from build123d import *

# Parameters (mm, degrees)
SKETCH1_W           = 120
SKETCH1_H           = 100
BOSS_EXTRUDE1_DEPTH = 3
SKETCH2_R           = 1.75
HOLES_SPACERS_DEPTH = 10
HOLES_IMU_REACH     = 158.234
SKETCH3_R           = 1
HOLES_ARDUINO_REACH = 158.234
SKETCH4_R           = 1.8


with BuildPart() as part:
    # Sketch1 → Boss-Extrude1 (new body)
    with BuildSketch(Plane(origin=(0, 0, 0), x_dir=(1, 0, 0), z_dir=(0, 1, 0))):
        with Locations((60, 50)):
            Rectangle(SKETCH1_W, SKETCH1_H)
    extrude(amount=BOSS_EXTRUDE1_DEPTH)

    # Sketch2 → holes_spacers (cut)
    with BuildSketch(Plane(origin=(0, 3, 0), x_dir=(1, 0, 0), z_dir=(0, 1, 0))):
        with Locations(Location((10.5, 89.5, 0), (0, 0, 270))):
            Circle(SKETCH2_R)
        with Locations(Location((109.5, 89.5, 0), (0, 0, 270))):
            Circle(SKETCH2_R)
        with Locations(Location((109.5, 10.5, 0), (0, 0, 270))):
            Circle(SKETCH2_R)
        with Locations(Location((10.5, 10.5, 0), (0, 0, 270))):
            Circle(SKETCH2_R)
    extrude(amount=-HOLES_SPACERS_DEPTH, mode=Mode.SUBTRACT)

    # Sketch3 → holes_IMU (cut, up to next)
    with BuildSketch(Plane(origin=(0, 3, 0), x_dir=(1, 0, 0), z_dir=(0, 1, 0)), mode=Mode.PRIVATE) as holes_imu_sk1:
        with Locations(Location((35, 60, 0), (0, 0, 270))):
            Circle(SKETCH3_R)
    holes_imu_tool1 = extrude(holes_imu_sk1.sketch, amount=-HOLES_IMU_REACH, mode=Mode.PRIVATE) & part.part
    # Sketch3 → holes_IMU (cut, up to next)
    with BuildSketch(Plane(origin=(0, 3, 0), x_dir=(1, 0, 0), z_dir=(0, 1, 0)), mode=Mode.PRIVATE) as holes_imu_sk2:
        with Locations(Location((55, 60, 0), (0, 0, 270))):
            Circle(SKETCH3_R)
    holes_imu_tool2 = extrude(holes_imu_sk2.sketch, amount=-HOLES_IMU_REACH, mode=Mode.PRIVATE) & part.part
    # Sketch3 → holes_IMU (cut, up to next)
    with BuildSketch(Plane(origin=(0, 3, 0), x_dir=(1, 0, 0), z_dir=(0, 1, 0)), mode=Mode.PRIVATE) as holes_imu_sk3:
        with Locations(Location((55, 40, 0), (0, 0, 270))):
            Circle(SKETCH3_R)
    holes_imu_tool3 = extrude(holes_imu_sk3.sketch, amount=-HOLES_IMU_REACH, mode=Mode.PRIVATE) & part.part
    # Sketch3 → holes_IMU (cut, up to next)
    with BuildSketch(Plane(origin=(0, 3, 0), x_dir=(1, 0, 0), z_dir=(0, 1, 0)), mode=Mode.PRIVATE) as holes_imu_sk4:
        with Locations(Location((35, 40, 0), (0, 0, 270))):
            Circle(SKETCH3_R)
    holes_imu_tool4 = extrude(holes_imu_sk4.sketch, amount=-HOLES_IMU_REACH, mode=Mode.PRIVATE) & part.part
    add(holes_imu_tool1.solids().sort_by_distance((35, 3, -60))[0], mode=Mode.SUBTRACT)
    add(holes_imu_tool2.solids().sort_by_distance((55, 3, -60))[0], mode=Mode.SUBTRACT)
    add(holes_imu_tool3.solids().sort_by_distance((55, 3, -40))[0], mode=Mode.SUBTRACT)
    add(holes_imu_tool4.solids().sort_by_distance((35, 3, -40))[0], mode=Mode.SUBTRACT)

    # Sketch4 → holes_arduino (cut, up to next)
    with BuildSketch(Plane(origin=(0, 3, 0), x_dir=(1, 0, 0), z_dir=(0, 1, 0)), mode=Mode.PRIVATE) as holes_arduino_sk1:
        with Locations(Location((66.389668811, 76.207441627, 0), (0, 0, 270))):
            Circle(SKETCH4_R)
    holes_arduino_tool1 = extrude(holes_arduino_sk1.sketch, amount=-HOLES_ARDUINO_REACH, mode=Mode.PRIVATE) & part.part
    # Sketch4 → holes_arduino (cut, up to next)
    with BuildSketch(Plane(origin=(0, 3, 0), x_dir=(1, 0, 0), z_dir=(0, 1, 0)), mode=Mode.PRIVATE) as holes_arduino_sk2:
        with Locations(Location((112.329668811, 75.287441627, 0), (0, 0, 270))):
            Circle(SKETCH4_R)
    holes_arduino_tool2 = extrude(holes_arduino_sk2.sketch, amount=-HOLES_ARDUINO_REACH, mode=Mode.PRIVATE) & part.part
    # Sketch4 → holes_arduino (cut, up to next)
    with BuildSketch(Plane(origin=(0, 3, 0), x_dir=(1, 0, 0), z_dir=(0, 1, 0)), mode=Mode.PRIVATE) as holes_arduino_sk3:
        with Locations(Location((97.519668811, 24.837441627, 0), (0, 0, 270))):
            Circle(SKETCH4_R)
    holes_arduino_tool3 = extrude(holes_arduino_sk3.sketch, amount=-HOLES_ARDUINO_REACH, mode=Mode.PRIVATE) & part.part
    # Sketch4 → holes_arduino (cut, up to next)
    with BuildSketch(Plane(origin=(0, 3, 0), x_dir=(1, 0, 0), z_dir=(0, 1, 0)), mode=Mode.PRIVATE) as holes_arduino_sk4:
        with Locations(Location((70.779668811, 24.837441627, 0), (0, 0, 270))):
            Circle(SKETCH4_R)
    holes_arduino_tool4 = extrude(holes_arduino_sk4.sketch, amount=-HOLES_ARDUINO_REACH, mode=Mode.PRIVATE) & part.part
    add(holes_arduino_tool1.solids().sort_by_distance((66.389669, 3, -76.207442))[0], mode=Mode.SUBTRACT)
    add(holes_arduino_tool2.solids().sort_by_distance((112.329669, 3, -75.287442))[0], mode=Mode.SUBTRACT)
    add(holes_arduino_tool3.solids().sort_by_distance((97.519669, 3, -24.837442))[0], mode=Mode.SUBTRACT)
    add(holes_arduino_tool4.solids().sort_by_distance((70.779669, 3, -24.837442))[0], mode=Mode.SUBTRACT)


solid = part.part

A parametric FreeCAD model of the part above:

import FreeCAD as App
import Part
import Sketcher
from FreeCAD import Vector

doc = App.newDocument("Part")
body = doc.addObject("PartDesign::Body", "Body")

sketch1 = body.newObject("Sketcher::SketchObject", "Sketch")
sketch1.AttachmentSupport = (doc.getObject("XZ_Plane"), [""])
sketch1.MapMode = "FlatFace"
sketch1.addGeometry([
    Part.LineSegment(Vector(0, -100, 0), Vector(0, 0, 0)),
    Part.LineSegment(Vector(0, 0, 0), Vector(120, 0, 0)),
    Part.LineSegment(Vector(120, 0, 0), Vector(120, -100, 0)),
    Part.LineSegment(Vector(120, -100, 0), Vector(0, -100, 0)),
], False)
sketch1.addConstraint([
    Sketcher.Constraint("Coincident", 0, 2, 1, 1),
    Sketcher.Constraint("Coincident", 1, 2, 2, 1),
    Sketcher.Constraint("Coincident", 2, 2, 3, 1),
    Sketcher.Constraint("Coincident", 3, 2, 0, 1),
    Sketcher.Constraint("Vertical", 0),
    Sketcher.Constraint("Horizontal", 1),
    Sketcher.Constraint("Vertical", 2),
    Sketcher.Constraint("Horizontal", 3),
    Sketcher.Constraint("Coincident", 0, 2, -1, 1),
    Sketcher.Constraint("DistanceX", 1, 1, 1, 2, 120.0),
    Sketcher.Constraint("DistanceY", 0, 1, 0, 2, 100.0),
])
pad1 = body.newObject("PartDesign::Pad", "Pad")
pad1.Profile = sketch1
pad1.Length = 3
pad1.Reversed = True

sketch2 = body.newObject("Sketcher::SketchObject", "Sketch001")
sketch2.AttachmentSupport = (doc.getObject("XZ_Plane"), [""])
sketch2.MapMode = "FlatFace"
sketch2.AttachmentOffset = App.Placement(Vector(0, 0, -3), App.Rotation())
sketch2.addGeometry([
    Part.Circle(Vector(10.5, -89.5, 0), Vector(0, 0, 1), 1.75),
    Part.Circle(Vector(109.5, -89.5, 0), Vector(0, 0, 1), 1.75),
    Part.Circle(Vector(109.5, -10.5, 0), Vector(0, 0, 1), 1.75),
    Part.Circle(Vector(10.5, -10.5, 0), Vector(0, 0, 1), 1.75),
], False)
sketch2.addConstraint([
    Sketcher.Constraint("Equal", 0, 1),
    Sketcher.Constraint("Equal", 1, 2),
    Sketcher.Constraint("Equal", 2, 3),
    Sketcher.Constraint("Horizontal", 0, 3, 1, 3),
    Sketcher.Constraint("Horizontal", 2, 3, 3, 3),
    Sketcher.Constraint("Vertical", 1, 3, 2, 3),
    Sketcher.Constraint("Vertical", 0, 3, 3, 3),
    Sketcher.Constraint("Diameter", 0, 3.5),
    Sketcher.Constraint("DistanceX", 0, 3, 1, 3, 99.0),
    Sketcher.Constraint("DistanceY", 1, 3, 2, 3, 79.0),
    Sketcher.Constraint("DistanceX", -1, 1, 0, 3, 10.5),
    Sketcher.Constraint("DistanceY", 0, 3, -1, 1, 89.5),
])
pocket1 = body.newObject("PartDesign::Pocket", "Pocket")
pocket1.Profile = sketch2
pocket1.Length = 10
pocket1.Reversed = True

sketch3 = body.newObject("Sketcher::SketchObject", "Sketch002")
sketch3.AttachmentSupport = (doc.getObject("XZ_Plane"), [""])
sketch3.MapMode = "FlatFace"
sketch3.AttachmentOffset = App.Placement(Vector(0, 0, -3), App.Rotation())
sketch3.addGeometry(Part.Circle(Vector(35, -60, 0), Vector(0, 0, 1), 1), False)
sketch3.addConstraint([
    Sketcher.Constraint("Diameter", 0, 2.0),
    Sketcher.Constraint("DistanceX", -1, 1, 0, 3, 35.0),
    Sketcher.Constraint("DistanceY", 0, 3, -1, 1, 60.0),
])
pocket2 = body.newObject("PartDesign::Pocket", "Pocket001")
pocket2.Profile = sketch3
pocket2.Type = "UpToFirst"
pocket2.Reversed = True

sketch4 = body.newObject("Sketcher::SketchObject", "Sketch003")
sketch4.AttachmentSupport = (doc.getObject("XZ_Plane"), [""])
sketch4.MapMode = "FlatFace"
sketch4.AttachmentOffset = App.Placement(Vector(0, 0, -3), App.Rotation())
sketch4.addGeometry(Part.Circle(Vector(55, -60, 0), Vector(0, 0, 1), 1), False)
sketch4.addConstraint([
    Sketcher.Constraint("Diameter", 0, 2.0),
    Sketcher.Constraint("DistanceX", -1, 1, 0, 3, 55.0),
    Sketcher.Constraint("DistanceY", 0, 3, -1, 1, 60.0),
])
pocket3 = body.newObject("PartDesign::Pocket", "Pocket002")
pocket3.Profile = sketch4
pocket3.Type = "UpToFirst"
pocket3.Reversed = True

sketch5 = body.newObject("Sketcher::SketchObject", "Sketch004")
sketch5.AttachmentSupport = (doc.getObject("XZ_Plane"), [""])
sketch5.MapMode = "FlatFace"
sketch5.AttachmentOffset = App.Placement(Vector(0, 0, -3), App.Rotation())
sketch5.addGeometry(Part.Circle(Vector(55, -40, 0), Vector(0, 0, 1), 1), False)
sketch5.addConstraint([
    Sketcher.Constraint("Diameter", 0, 2.0),
    Sketcher.Constraint("DistanceX", -1, 1, 0, 3, 55.0),
    Sketcher.Constraint("DistanceY", 0, 3, -1, 1, 40.0),
])
pocket4 = body.newObject("PartDesign::Pocket", "Pocket003")
pocket4.Profile = sketch5
pocket4.Type = "UpToFirst"
pocket4.Reversed = True

sketch6 = body.newObject("Sketcher::SketchObject", "Sketch005")
sketch6.AttachmentSupport = (doc.getObject("XZ_Plane"), [""])
sketch6.MapMode = "FlatFace"
sketch6.AttachmentOffset = App.Placement(Vector(0, 0, -3), App.Rotation())
sketch6.addGeometry(Part.Circle(Vector(35, -40, 0), Vector(0, 0, 1), 1), False)
sketch6.addConstraint([
    Sketcher.Constraint("Diameter", 0, 2.0),
    Sketcher.Constraint("DistanceX", -1, 1, 0, 3, 35.0),
    Sketcher.Constraint("DistanceY", 0, 3, -1, 1, 40.0),
])
pocket5 = body.newObject("PartDesign::Pocket", "Pocket004")
pocket5.Profile = sketch6
pocket5.Type = "UpToFirst"
pocket5.Reversed = True

sketch7 = body.newObject("Sketcher::SketchObject", "Sketch006")
sketch7.AttachmentSupport = (doc.getObject("XZ_Plane"), [""])
sketch7.MapMode = "FlatFace"
sketch7.AttachmentOffset = App.Placement(Vector(0, 0, -3), App.Rotation())
sketch7.addGeometry(Part.Circle(Vector(66.389669, -76.207442, 0), Vector(0, 0, 1), 1.8), False)
sketch7.addConstraint([
    Sketcher.Constraint("Diameter", 0, 3.6),
    Sketcher.Constraint("DistanceX", -1, 1, 0, 3, 66.389669),
    Sketcher.Constraint("DistanceY", 0, 3, -1, 1, 76.207442),
])
pocket6 = body.newObject("PartDesign::Pocket", "Pocket005")
pocket6.Profile = sketch7
pocket6.Type = "UpToFirst"
pocket6.Reversed = True

sketch8 = body.newObject("Sketcher::SketchObject", "Sketch007")
sketch8.AttachmentSupport = (doc.getObject("XZ_Plane"), [""])
sketch8.MapMode = "FlatFace"
sketch8.AttachmentOffset = App.Placement(Vector(0, 0, -3), App.Rotation())
sketch8.addGeometry(Part.Circle(Vector(112.329669, -75.287442, 0), Vector(0, 0, 1), 1.8), False)
sketch8.addConstraint([
    Sketcher.Constraint("Diameter", 0, 3.6),
    Sketcher.Constraint("DistanceX", -1, 1, 0, 3, 112.329669),
    Sketcher.Constraint("DistanceY", 0, 3, -1, 1, 75.287442),
])
pocket7 = body.newObject("PartDesign::Pocket", "Pocket006")
pocket7.Profile = sketch8
pocket7.Type = "UpToFirst"
pocket7.Reversed = True

sketch9 = body.newObject("Sketcher::SketchObject", "Sketch008")
sketch9.AttachmentSupport = (doc.getObject("XZ_Plane"), [""])
sketch9.MapMode = "FlatFace"
sketch9.AttachmentOffset = App.Placement(Vector(0, 0, -3), App.Rotation())
sketch9.addGeometry(Part.Circle(Vector(97.519669, -24.837442, 0), Vector(0, 0, 1), 1.8), False)
sketch9.addConstraint([
    Sketcher.Constraint("Diameter", 0, 3.6),
    Sketcher.Constraint("DistanceX", -1, 1, 0, 3, 97.519669),
    Sketcher.Constraint("DistanceY", 0, 3, -1, 1, 24.837442),
])
pocket8 = body.newObject("PartDesign::Pocket", "Pocket007")
pocket8.Profile = sketch9
pocket8.Type = "UpToFirst"
pocket8.Reversed = True

sketch10 = body.newObject("Sketcher::SketchObject", "Sketch009")
sketch10.AttachmentSupport = (doc.getObject("XZ_Plane"), [""])
sketch10.MapMode = "FlatFace"
sketch10.AttachmentOffset = App.Placement(Vector(0, 0, -3), App.Rotation())
sketch10.addGeometry(Part.Circle(Vector(70.779669, -24.837442, 0), Vector(0, 0, 1), 1.8), False)
sketch10.addConstraint([
    Sketcher.Constraint("Diameter", 0, 3.6),
    Sketcher.Constraint("DistanceX", -1, 1, 0, 3, 70.779669),
    Sketcher.Constraint("DistanceY", 0, 3, -1, 1, 24.837442),
])
pocket9 = body.newObject("PartDesign::Pocket", "Pocket008")
pocket9.Profile = sketch10
pocket9.Type = "UpToFirst"
pocket9.Reversed = True

doc.recompute()
